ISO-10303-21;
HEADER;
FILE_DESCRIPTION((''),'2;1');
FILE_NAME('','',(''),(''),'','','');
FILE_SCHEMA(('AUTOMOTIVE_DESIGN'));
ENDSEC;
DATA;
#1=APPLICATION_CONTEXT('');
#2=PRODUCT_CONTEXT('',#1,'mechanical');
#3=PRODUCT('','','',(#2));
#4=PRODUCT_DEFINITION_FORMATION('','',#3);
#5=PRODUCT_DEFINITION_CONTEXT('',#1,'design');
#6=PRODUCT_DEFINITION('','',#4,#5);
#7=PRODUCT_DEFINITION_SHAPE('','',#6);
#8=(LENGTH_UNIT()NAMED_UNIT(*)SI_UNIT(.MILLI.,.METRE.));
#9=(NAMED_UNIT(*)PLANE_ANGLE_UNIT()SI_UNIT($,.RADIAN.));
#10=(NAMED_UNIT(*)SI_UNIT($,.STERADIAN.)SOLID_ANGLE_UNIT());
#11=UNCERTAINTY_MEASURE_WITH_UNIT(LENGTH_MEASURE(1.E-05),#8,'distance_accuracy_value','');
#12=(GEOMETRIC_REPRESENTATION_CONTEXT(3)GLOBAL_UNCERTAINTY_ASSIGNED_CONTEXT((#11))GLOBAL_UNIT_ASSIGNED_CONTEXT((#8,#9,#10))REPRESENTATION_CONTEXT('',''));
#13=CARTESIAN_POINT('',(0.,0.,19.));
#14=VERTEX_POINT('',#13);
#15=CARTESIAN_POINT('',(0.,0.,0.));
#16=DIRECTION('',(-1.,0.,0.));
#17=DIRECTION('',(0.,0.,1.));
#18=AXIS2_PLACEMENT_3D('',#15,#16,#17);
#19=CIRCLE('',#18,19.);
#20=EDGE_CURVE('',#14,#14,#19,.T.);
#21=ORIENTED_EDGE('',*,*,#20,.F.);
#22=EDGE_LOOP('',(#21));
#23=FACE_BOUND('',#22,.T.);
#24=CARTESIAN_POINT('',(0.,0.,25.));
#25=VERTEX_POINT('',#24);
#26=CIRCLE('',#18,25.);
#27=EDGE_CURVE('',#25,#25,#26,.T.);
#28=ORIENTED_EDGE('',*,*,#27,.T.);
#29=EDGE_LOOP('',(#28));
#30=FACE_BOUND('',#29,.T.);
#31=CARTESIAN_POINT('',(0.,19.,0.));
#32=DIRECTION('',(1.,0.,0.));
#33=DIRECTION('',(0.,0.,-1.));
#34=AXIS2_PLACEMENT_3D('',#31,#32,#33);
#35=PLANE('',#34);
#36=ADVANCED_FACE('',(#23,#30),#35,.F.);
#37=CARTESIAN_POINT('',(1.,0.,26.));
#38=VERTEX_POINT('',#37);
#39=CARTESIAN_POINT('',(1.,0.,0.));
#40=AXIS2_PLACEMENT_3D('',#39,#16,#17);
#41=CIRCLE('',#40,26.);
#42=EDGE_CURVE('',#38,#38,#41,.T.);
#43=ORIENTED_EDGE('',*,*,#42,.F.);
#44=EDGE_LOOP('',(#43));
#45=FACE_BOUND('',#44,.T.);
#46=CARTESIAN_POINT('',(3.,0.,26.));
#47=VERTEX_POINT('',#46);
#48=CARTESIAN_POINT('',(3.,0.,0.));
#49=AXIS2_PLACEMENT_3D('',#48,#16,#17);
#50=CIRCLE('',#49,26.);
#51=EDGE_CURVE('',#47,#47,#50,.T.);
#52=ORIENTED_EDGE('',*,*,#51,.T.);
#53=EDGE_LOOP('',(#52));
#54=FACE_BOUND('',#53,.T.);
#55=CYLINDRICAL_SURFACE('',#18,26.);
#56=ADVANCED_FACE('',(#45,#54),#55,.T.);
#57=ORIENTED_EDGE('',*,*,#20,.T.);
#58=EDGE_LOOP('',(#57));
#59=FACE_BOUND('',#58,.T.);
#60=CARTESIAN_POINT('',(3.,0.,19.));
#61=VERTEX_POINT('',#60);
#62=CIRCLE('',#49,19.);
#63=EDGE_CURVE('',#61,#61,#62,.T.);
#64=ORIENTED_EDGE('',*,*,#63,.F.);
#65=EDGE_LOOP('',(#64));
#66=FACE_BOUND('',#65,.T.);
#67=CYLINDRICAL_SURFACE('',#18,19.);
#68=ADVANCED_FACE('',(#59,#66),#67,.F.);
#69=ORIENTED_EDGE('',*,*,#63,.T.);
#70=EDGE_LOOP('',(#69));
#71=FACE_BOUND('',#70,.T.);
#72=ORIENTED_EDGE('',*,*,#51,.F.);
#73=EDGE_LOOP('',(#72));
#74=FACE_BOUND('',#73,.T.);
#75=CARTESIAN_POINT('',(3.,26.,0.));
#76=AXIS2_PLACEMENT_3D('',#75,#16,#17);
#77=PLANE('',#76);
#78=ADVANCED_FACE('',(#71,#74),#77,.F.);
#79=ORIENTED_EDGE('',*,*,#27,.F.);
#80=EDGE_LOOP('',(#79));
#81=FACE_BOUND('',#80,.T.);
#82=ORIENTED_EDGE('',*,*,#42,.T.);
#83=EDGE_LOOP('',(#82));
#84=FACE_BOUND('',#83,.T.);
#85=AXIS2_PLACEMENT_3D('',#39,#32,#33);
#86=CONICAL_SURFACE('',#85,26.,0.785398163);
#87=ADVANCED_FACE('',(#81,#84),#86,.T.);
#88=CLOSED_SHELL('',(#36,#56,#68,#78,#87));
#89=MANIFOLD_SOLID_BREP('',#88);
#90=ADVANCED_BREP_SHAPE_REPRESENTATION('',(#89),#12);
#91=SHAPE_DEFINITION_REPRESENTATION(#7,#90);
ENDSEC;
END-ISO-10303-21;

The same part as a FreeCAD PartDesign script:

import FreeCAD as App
import Part
import Sketcher

V = App.Vector
Q = App.Units.Quantity


def add_polygon(sketch, points):
    """Adds a closed chain of lines whose ends are joined by coincident constraints."""
    first, n = sketch.GeometryCount, len(points)
    for a, b in zip(points, points[1:] + points[:1]):
        sketch.addGeometry(Part.LineSegment(App.Vector(*a, 0), App.Vector(*b, 0)), False)
    for i in range(n):
        sketch.addConstraint(Sketcher.Constraint("Coincident", first + i, 2, first + (i + 1) % n, 1))

doc = App.newDocument("Part")
body = doc.addObject("PartDesign::Body", "Body")

# Sketch on XY plane
sketch1 = body.newObject("Sketcher::SketchObject", "Sketch")
sketch1.AttachmentSupport = (doc.getObject("XY_Plane"), [""])
sketch1.MapMode = "FlatFace"
add_polygon(sketch1, [(0, 25), (0, 19), (3, 19), (3, 26), (1, 26)])  # lines 0-4
sketch1.addConstraint(Sketcher.Constraint("Vertical", 0))
sketch1.addConstraint(Sketcher.Constraint("Horizontal", 1))
sketch1.addConstraint(Sketcher.Constraint("Vertical", 2))
sketch1.addConstraint(Sketcher.Constraint("Horizontal", 3))
sketch1.addConstraint(Sketcher.Constraint("PointOnObject", 0, 2, -2))
sketch1.addConstraint(Sketcher.Constraint("DistanceX", 1, 1, 1, 2, Q("3 mm")))
sketch1.addConstraint(Sketcher.Constraint("DistanceX", 3, 2, 3, 1, Q("2 mm")))
sketch1.addConstraint(Sketcher.Constraint("DistanceY", 0, 2, 0, 1, Q("6 mm")))
sketch1.addConstraint(Sketcher.Constraint("DistanceY", 2, 1, 2, 2, Q("7 mm")))
sketch1.addConstraint(Sketcher.Constraint("DistanceY", -1, 1, 0, 2, Q("19 mm")))
revolution = body.newObject("PartDesign::Revolution", "Revolution")
revolution.Profile = sketch1
revolution.ReferenceAxis = (sketch1, ["H_Axis"])
revolution.Angle = 360

doc.recompute()
